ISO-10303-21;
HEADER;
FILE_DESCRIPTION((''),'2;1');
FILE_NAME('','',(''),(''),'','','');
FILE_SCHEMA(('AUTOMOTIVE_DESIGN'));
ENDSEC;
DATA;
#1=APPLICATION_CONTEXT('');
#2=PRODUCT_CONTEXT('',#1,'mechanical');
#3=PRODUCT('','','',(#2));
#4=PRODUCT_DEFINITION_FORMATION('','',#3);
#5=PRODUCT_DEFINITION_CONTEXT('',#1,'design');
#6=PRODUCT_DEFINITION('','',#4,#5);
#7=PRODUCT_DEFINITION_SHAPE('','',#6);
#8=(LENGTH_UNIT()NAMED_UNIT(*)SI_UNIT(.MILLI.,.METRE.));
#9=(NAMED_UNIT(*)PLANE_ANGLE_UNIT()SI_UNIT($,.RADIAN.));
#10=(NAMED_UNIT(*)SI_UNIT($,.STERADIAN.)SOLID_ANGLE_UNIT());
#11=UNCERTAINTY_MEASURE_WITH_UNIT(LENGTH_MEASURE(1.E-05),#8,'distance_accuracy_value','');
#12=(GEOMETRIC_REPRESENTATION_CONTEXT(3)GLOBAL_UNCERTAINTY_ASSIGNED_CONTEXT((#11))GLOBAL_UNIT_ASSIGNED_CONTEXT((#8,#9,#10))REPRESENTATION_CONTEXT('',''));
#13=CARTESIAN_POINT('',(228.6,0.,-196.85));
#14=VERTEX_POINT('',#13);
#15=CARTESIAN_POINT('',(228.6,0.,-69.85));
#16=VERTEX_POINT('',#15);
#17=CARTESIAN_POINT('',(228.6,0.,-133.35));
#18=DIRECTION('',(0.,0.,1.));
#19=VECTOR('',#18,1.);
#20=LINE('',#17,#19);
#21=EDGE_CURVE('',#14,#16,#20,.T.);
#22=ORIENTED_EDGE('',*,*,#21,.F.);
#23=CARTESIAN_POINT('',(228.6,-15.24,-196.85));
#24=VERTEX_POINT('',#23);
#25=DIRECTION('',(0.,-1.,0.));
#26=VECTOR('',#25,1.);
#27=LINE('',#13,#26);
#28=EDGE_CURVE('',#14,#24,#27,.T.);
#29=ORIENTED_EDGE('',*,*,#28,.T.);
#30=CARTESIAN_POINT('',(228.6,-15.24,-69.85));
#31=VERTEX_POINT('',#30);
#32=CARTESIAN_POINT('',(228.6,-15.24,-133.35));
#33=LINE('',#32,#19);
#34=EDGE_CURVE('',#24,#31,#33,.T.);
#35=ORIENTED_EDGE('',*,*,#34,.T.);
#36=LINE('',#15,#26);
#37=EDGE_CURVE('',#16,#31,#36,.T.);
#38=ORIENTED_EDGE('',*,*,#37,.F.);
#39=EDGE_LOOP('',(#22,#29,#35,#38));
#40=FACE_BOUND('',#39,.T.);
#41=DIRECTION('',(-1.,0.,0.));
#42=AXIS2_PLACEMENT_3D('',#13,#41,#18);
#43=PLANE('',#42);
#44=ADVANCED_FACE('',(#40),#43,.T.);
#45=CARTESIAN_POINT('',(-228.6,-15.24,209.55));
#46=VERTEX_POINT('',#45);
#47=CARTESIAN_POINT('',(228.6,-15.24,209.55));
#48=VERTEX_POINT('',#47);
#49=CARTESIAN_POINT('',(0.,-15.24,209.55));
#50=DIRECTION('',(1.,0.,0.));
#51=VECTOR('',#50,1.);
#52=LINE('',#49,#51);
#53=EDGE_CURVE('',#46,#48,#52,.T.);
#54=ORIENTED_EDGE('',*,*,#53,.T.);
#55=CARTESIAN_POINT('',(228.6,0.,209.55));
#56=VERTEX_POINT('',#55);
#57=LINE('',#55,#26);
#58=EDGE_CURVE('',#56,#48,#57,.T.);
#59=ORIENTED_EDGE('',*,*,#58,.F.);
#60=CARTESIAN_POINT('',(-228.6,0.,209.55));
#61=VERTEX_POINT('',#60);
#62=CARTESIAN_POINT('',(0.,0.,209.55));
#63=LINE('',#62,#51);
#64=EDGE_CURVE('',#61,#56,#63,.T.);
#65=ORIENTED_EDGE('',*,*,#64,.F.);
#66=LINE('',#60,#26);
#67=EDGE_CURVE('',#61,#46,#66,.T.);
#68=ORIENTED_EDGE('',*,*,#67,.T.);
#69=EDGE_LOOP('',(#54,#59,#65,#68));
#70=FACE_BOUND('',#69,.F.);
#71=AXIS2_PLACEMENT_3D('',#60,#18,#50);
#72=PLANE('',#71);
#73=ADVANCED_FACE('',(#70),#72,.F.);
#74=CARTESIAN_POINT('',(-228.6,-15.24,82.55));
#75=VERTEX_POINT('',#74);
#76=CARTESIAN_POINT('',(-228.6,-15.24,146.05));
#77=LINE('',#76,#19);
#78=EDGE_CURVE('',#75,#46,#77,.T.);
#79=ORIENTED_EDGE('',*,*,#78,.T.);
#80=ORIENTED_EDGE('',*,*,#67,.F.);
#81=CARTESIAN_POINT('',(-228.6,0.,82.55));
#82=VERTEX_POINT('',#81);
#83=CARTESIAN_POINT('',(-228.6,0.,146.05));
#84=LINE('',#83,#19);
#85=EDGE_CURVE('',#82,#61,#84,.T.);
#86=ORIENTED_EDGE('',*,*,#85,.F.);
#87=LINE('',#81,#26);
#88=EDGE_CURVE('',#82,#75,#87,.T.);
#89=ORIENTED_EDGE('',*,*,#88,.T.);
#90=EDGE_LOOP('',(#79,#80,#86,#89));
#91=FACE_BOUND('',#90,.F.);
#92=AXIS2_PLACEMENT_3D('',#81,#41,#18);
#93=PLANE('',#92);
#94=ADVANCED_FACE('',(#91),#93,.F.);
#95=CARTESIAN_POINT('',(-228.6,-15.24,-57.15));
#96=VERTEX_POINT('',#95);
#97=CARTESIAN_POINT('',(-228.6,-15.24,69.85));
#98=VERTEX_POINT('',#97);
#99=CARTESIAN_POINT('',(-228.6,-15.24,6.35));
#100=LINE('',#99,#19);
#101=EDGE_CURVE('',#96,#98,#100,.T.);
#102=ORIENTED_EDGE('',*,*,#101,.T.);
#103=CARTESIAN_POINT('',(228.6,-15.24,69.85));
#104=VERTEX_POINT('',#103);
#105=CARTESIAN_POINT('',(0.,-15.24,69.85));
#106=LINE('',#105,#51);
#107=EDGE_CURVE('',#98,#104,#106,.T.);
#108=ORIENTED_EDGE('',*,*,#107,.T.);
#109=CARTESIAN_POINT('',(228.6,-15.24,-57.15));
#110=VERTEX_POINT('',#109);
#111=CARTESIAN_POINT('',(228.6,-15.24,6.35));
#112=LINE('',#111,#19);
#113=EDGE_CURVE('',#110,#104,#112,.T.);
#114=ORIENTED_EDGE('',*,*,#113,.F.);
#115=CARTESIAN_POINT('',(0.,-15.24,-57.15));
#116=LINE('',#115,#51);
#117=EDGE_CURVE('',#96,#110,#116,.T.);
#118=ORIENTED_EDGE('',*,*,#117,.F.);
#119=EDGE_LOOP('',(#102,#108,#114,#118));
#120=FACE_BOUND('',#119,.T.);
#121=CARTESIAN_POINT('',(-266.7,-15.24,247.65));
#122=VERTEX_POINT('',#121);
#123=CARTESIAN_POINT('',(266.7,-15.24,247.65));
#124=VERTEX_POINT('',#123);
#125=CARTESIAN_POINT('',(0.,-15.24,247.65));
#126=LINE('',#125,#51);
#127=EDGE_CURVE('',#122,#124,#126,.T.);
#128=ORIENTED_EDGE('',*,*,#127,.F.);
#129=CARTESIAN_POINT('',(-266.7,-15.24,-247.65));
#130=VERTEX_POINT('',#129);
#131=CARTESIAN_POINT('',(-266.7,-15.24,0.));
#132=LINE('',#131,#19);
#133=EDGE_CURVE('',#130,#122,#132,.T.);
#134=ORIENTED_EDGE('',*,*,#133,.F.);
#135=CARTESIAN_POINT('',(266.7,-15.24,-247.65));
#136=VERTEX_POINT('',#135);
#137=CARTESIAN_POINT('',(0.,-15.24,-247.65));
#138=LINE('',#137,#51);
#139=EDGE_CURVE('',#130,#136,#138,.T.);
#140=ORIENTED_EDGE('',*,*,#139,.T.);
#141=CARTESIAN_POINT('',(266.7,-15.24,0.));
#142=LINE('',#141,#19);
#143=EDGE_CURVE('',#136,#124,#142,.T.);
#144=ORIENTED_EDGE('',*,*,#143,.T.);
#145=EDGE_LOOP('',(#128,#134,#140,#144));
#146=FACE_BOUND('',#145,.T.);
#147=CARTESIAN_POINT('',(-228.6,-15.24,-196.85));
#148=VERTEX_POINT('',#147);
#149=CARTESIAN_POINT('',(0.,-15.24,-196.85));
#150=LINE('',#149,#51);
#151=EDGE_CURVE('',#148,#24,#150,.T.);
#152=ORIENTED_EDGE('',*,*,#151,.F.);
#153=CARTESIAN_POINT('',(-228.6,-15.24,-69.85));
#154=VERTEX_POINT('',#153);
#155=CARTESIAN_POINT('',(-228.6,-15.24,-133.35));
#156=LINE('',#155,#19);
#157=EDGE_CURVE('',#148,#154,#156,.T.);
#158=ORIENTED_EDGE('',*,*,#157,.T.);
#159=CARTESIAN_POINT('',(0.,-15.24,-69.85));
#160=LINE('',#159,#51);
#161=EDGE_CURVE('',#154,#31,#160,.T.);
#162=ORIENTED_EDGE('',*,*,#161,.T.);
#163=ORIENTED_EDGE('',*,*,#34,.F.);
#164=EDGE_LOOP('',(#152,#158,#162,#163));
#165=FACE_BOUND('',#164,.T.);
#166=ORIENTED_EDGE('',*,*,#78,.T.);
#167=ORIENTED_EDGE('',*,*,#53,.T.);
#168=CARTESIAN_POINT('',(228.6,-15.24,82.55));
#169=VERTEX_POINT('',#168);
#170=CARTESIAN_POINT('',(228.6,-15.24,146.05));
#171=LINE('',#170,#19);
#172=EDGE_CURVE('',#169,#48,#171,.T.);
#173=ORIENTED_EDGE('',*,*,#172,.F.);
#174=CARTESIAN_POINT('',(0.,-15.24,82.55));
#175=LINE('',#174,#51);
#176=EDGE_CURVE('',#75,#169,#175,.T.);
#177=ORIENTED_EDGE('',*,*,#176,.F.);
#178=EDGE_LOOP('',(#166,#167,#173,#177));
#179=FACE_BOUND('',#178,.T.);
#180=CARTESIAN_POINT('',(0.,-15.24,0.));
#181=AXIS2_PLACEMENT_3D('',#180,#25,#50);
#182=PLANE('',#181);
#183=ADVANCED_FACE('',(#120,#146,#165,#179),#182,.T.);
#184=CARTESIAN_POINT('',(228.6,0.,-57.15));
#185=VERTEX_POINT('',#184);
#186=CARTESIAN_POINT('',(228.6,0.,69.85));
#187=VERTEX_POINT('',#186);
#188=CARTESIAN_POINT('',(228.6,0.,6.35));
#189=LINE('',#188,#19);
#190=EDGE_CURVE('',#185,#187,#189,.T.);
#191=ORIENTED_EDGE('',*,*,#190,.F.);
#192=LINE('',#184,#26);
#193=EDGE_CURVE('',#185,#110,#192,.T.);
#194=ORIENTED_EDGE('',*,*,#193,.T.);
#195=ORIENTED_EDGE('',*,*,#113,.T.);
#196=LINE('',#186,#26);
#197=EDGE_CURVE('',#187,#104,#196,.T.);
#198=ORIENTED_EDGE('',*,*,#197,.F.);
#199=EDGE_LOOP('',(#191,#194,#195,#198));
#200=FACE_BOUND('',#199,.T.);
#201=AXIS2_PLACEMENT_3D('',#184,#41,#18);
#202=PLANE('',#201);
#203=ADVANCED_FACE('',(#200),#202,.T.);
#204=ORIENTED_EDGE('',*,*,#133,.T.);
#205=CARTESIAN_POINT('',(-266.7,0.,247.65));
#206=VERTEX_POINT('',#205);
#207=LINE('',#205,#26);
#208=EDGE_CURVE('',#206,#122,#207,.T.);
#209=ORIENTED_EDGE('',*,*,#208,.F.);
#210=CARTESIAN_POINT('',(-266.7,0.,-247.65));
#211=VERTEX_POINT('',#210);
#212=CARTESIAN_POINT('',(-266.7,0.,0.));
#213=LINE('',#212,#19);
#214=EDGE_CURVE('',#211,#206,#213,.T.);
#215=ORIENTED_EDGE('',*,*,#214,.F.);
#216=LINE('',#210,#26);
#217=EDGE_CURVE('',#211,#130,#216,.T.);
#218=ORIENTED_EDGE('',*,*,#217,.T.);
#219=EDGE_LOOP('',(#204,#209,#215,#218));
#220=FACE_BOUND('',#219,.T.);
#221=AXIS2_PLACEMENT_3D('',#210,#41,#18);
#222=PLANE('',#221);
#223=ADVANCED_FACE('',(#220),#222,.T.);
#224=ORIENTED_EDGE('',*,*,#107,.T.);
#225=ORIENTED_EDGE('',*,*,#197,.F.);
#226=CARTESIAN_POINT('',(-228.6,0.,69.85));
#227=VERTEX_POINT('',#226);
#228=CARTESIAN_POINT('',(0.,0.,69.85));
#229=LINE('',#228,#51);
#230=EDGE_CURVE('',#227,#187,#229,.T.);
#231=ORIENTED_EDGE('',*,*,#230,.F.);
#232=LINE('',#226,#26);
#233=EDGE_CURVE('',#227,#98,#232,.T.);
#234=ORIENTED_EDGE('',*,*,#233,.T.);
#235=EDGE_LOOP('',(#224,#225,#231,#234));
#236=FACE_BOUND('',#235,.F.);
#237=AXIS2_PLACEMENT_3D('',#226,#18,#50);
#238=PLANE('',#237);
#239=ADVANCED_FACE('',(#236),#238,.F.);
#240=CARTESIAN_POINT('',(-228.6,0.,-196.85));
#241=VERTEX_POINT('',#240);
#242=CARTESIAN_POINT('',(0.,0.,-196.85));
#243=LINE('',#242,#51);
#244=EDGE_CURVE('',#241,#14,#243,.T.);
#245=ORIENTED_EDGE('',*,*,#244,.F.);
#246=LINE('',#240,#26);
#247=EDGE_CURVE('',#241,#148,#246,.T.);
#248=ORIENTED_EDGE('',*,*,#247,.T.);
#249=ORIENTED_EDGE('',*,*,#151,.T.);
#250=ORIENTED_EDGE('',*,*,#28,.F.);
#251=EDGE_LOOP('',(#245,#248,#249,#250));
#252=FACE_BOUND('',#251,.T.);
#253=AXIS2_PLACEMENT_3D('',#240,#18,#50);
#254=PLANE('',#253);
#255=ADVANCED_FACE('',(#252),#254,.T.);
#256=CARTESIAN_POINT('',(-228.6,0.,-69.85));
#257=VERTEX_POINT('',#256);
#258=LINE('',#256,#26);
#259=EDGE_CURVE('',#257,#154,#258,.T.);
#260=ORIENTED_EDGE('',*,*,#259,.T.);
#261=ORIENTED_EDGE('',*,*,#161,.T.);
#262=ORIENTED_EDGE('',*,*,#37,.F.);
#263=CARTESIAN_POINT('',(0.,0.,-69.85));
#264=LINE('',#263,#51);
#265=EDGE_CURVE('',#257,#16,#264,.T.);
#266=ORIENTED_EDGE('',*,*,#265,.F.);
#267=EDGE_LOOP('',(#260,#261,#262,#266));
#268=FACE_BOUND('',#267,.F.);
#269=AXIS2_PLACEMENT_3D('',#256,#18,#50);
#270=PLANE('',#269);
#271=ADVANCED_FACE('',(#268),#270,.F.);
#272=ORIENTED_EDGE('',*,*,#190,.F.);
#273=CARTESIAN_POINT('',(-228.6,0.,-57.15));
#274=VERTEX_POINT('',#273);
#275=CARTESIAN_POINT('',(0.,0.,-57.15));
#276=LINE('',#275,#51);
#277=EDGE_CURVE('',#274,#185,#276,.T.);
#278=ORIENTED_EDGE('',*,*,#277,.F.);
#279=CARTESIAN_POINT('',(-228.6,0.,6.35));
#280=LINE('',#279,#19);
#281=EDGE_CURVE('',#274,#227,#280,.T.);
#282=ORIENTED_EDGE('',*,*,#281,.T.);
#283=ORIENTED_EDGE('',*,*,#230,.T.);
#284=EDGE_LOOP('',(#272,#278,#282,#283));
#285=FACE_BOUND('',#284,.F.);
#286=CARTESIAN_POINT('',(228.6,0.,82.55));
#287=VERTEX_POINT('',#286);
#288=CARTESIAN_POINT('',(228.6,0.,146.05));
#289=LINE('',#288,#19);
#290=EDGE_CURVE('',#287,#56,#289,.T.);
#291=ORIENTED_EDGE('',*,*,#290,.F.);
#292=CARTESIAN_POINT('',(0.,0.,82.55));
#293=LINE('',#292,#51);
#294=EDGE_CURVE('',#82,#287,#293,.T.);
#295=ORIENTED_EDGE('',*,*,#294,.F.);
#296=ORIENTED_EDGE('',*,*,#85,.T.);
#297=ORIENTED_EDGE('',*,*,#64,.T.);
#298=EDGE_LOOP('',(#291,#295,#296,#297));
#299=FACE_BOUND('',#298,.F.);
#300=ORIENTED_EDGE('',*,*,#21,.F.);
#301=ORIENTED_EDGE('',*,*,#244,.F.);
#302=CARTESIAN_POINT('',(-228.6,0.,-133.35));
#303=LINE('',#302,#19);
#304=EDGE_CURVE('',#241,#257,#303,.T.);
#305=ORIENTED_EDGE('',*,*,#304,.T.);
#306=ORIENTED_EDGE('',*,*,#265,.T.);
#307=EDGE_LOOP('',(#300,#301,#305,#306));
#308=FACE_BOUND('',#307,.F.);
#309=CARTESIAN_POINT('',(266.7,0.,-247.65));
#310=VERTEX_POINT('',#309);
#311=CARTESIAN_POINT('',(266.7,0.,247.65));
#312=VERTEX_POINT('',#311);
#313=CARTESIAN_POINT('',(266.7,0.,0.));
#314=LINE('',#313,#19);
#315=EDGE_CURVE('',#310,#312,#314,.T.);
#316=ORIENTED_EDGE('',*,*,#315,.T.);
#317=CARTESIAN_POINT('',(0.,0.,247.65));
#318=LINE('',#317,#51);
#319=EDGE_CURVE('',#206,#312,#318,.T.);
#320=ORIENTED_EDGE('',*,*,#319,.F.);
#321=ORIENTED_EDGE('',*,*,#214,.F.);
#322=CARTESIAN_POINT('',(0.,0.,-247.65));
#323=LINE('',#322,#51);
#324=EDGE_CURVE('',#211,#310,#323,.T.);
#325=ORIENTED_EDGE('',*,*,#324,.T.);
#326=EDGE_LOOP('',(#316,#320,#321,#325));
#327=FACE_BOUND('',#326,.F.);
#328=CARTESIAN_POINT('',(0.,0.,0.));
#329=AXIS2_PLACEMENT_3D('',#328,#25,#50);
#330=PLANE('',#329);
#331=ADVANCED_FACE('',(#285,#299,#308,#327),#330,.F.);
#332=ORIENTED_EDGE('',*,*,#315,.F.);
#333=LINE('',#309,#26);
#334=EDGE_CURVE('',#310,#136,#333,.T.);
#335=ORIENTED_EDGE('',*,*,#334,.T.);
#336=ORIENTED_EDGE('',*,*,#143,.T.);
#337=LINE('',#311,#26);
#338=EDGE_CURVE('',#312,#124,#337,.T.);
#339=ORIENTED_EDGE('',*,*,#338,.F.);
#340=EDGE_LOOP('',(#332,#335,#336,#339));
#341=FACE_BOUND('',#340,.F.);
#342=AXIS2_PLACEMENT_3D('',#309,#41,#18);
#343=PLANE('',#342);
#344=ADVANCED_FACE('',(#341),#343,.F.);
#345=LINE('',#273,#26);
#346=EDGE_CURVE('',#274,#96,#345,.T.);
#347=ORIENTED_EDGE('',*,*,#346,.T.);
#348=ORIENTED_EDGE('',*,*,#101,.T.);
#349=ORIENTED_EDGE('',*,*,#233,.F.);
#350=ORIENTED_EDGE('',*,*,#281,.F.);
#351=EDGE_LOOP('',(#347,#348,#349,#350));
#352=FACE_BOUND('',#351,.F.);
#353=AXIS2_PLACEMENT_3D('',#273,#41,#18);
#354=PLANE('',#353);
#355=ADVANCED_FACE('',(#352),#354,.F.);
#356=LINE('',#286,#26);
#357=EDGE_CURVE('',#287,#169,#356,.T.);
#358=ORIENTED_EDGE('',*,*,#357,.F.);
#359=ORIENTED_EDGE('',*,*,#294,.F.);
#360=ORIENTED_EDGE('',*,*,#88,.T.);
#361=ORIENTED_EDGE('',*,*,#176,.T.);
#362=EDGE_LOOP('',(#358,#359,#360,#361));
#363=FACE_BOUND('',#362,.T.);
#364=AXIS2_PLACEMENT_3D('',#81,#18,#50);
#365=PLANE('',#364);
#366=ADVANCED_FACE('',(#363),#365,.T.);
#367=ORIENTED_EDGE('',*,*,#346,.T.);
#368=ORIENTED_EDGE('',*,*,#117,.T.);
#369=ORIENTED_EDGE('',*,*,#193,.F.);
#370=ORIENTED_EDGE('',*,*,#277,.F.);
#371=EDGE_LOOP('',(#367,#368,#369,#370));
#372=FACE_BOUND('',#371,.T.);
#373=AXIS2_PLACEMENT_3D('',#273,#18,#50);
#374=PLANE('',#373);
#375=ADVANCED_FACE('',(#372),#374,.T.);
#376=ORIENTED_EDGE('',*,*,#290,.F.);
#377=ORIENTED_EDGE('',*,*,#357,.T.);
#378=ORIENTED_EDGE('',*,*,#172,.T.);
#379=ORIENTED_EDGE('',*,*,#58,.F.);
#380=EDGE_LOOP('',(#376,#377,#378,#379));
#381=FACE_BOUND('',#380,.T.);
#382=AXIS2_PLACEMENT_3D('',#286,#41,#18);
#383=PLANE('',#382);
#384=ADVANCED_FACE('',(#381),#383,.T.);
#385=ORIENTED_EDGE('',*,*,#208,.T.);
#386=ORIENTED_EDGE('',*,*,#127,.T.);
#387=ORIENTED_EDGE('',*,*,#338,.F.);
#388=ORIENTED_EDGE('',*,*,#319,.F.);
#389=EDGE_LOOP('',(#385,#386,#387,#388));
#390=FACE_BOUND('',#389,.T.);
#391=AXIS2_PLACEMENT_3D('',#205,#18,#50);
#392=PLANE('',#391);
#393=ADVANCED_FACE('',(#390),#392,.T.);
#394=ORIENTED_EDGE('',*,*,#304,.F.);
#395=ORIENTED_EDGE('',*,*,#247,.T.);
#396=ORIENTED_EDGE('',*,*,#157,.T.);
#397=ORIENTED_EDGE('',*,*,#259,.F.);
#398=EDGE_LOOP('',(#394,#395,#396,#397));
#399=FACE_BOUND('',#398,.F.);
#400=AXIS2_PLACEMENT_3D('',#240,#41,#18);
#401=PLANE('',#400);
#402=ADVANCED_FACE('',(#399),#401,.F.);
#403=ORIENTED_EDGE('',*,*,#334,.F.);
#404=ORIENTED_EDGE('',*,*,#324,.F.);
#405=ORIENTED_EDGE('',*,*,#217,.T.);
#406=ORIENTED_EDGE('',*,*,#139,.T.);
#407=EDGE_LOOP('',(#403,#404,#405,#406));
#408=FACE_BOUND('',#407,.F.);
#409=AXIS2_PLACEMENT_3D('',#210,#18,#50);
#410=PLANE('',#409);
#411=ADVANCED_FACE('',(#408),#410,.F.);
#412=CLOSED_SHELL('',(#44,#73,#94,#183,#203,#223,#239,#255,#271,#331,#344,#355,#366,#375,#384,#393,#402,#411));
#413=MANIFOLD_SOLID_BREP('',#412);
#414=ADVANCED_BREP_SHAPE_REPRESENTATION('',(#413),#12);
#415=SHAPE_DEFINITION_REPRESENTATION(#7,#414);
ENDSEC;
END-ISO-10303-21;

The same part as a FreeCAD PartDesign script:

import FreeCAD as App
import Part
import Sketcher
from FreeCAD import Vector
Q = App.Units.Quantity

doc = App.newDocument("Part")
body = doc.addObject("PartDesign::Body", "Body")

# Sketch on XZ plane
sketch1 = doc.addObject("Sketcher::SketchObject", "Sketch")
body.addObject(sketch1)
sketch1.AttachmentSupport = (doc.XZ_Plane, [""])
sketch1.MapMode = "FlatFace"
sketch1.addGeometry([
    Part.LineSegment(Vector(-266.7, 247.65, 0), Vector(-266.7, -247.65, 0)),  # 0
    Part.LineSegment(Vector(-266.7, -247.65, 0), Vector(266.7, -247.65, 0)),  # 1
    Part.LineSegment(Vector(266.7, -247.65, 0), Vector(266.7, 247.65, 0)),  # 2
    Part.LineSegment(Vector(266.7, 247.65, 0), Vector(-266.7, 247.65, 0)),  # 3
    Part.LineSegment(Vector(228.6, -196.85, 0), Vector(-228.6, -196.85, 0)),  # 4
    Part.LineSegment(Vector(-228.6, -196.85, 0), Vector(-228.6, -69.85, 0)),  # 5
    Part.LineSegment(Vector(-228.6, -69.85, 0), Vector(228.6, -69.85, 0)),  # 6
    Part.LineSegment(Vector(228.6, -69.85, 0), Vector(228.6, -196.85, 0)),  # 7
    Part.LineSegment(Vector(228.6, -57.15, 0), Vector(-228.6, -57.15, 0)),  # 8
    Part.LineSegment(Vector(-228.6, -57.15, 0), Vector(-228.6, 69.85, 0)),  # 9
    Part.LineSegment(Vector(-228.6, 69.85, 0), Vector(228.6, 69.85, 0)),  # 10
    Part.LineSegment(Vector(228.6, 69.85, 0), Vector(228.6, -57.15, 0)),  # 11
    Part.LineSegment(Vector(228.6, 82.55, 0), Vector(-228.6, 82.55, 0)),  # 12
    Part.LineSegment(Vector(-228.6, 82.55, 0), Vector(-228.6, 209.55, 0)),  # 13
    Part.LineSegment(Vector(-228.6, 209.55, 0), Vector(228.6, 209.55, 0)),  # 14
    Part.LineSegment(Vector(228.6, 209.55, 0), Vector(228.6, 82.55, 0)),  # 15
], False)
sketch1.addConstraint([
    Sketcher.Constraint("Coincident", 0, 2, 1, 1),
    Sketcher.Constraint("Coincident", 1, 2, 2, 1),
    Sketcher.Constraint("Coincident", 2, 2, 3, 1),
    Sketcher.Constraint("Coincident", 3, 2, 0, 1),
    Sketcher.Constraint("Coincident", 4, 2, 5, 1),
    Sketcher.Constraint("Coincident", 5, 2, 6, 1),
    Sketcher.Constraint("Coincident", 6, 2, 7, 1),
    Sketcher.Constraint("Coincident", 7, 2, 4, 1),
    Sketcher.Constraint("Coincident", 8, 2, 9, 1),
    Sketcher.Constraint("Coincident", 9, 2, 10, 1),
    Sketcher.Constraint("Coincident", 10, 2, 11, 1),
    Sketcher.Constraint("Coincident", 11, 2, 8, 1),
    Sketcher.Constraint("Coincident", 12, 2, 13, 1),
    Sketcher.Constraint("Coincident", 13, 2, 14, 1),
    Sketcher.Constraint("Coincident", 14, 2, 15, 1),
    Sketcher.Constraint("Coincident", 15, 2, 12, 1),
    Sketcher.Constraint("Vertical", 0),
    Sketcher.Constraint("Horizontal", 1),
    Sketcher.Constraint("Vertical", 2),
    Sketcher.Constraint("Horizontal", 3),
    Sketcher.Constraint("Horizontal", 4),
    Sketcher.Constraint("Vertical", 5),
    Sketcher.Constraint("Horizontal", 6),
    Sketcher.Constraint("Vertical", 7),
    Sketcher.Constraint("Horizontal", 8),
    Sketcher.Constraint("Vertical", 9),
    Sketcher.Constraint("Horizontal", 10),
    Sketcher.Constraint("Vertical", 11),
    Sketcher.Constraint("Horizontal", 12),
    Sketcher.Constraint("Vertical", 13),
    Sketcher.Constraint("Horizontal", 14),
    Sketcher.Constraint("Vertical", 15),
    Sketcher.Constraint("Symmetric", 0, 2, 2, 2, -1, 1),
    Sketcher.Constraint("Symmetric", 6, 2, 9, 2, -1, 1),
    Sketcher.Constraint("Vertical", 5, 2, 8, 2),
    Sketcher.Constraint("Vertical", 7, 2, 10, 2),
    Sketcher.Constraint("Vertical", 9, 2, 12, 2),
    Sketcher.Constraint("Vertical", 11, 2, 14, 2),
    Sketcher.Constraint("Equal", 7, 9),
    Sketcher.Constraint("Equal", 11, 13),
    Sketcher.Constraint("DistanceX", 1, 1, 1, 2, Q("21 in")),
    Sketcher.Constraint("DistanceX", 4, 2, 4, 1, Q("18 in")),
    Sketcher.Constraint("DistanceY", 5, 1, 5, 2, Q("5 in")),
    Sketcher.Constraint("DistanceY", 0, 2, 0, 1, Q("19.5 in")),
    Sketcher.Constraint("DistanceY", 0, 2, 4, 2, Q("2 in")),
    Sketcher.Constraint("DistanceY", 5, 2, 12, 2, Q("6 in")),
])
pad1 = doc.addObject("PartDesign::Pad", "Pad")
body.addObject(pad1)
pad1.Profile = sketch1
pad1.Length = Q("0.6 in")

doc.recompute()
